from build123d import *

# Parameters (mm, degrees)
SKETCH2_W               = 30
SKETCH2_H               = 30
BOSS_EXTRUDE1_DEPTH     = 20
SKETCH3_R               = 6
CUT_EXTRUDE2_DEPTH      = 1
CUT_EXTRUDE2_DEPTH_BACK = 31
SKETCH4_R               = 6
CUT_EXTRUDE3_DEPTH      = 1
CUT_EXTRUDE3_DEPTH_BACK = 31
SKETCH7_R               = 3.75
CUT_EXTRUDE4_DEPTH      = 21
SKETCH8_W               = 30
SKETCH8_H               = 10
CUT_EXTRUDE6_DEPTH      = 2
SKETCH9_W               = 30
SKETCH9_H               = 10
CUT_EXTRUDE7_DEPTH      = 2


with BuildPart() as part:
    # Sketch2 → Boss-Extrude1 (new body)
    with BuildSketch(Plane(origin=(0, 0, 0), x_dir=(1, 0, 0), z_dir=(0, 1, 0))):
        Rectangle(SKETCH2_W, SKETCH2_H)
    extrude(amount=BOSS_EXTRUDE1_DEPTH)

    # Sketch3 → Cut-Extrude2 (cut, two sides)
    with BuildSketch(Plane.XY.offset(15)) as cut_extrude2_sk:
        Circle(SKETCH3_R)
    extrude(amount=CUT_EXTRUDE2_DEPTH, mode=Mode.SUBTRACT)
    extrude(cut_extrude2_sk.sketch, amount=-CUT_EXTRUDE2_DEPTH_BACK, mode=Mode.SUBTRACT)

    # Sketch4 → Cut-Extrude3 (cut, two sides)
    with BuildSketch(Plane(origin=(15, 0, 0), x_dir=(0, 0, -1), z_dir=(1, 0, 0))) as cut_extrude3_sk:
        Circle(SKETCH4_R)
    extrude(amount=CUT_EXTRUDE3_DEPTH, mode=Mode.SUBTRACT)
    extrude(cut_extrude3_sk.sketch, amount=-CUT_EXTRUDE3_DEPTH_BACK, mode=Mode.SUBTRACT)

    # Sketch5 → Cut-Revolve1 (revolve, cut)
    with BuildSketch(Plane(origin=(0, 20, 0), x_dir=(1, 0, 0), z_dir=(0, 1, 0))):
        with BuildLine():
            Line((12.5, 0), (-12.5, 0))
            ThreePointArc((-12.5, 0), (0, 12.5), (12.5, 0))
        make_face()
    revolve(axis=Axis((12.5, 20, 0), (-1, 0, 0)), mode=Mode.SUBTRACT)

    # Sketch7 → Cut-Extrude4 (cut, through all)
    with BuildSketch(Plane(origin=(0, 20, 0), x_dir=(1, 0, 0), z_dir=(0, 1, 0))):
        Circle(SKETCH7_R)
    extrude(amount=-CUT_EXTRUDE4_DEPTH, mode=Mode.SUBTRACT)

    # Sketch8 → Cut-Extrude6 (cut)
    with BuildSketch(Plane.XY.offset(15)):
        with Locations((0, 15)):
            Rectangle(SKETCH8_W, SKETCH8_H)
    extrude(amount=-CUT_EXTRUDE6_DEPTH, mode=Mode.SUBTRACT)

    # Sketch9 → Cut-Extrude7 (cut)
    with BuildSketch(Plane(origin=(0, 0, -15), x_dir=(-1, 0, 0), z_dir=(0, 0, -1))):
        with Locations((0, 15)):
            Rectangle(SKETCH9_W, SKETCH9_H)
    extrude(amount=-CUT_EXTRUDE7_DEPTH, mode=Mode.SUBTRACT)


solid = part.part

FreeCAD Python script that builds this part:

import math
import FreeCAD as App
import Part
import Sketcher

V = App.Vector
Q = App.Units.Quantity

doc = App.newDocument("Part")
params = doc.addObject("Spreadsheet::Sheet", "Params")
for row, (alias, value) in enumerate([
    ("sketch1_width", "30 mm"),
    ("pad1_length", "20 mm"),
    ("sketch2_diameter", "12 mm"),
    ("sketch3_diameter", "12 mm"),
    ("sketch4_radius", "12.5 mm"),
    ("groove_angle", "360 deg"),
    ("sketch5_diameter", "7.5 mm"),
    ("sketch6_width", "30 mm"),
    ("sketch6_height", "10 mm"),
    ("pocket4_length", "2 mm"),
    ("sketch7_width", "30 mm"),
    ("sketch7_height", "10 mm"),
    ("pocket5_length", "2 mm"),
], start=1):
    params.set(f"A{row}", alias)
    params.set(f"B{row}", "=" + value)
    params.setAlias(f"B{row}", alias)

body = doc.addObject("PartDesign::Body", "Body")

sketch1 = doc.addObject("Sketcher::SketchObject", "Sketch")
body.addObject(sketch1)
sketch1.AttachmentSupport = (doc.XZ_Plane, [""])
sketch1.MapMode = "FlatFace"
sketch1.addGeometry(Part.LineSegment(V(-15, -15, 0), V(-15, 15, 0)), False)
sketch1.addGeometry(Part.LineSegment(V(-15, 15, 0), V(15, 15, 0)), False)
sketch1.addGeometry(Part.LineSegment(V(15, 15, 0), V(15, -15, 0)), False)
sketch1.addGeometry(Part.LineSegment(V(15, -15, 0), V(-15, -15, 0)), False)
sketch1.addConstraint(Sketcher.Constraint("Coincident", 0, 2, 1, 1))
sketch1.addConstraint(Sketcher.Constraint("Coincident", 1, 2, 2, 1))
sketch1.addConstraint(Sketcher.Constraint("Coincident", 2, 2, 3, 1))
sketch1.addConstraint(Sketcher.Constraint("Coincident", 3, 2, 0, 1))
sketch1.addConstraint(Sketcher.Constraint("Vertical", 0))
sketch1.addConstraint(Sketcher.Constraint("Horizontal", 1))
sketch1.addConstraint(Sketcher.Constraint("Vertical", 2))
sketch1.addConstraint(Sketcher.Constraint("Horizontal", 3))
sketch1.addConstraint(Sketcher.Constraint("Symmetric", 0, 2, 2, 2, -1, 1))
sketch1.addConstraint(Sketcher.Constraint("Equal", 3, 0))
sketch1.addConstraint(Sketcher.Constraint("DistanceX", 1, 1, 1, 2, Q("30 mm")))
sketch1.setExpression("Constraints[10]", "Params.sketch1_width")
pad1 = doc.addObject("PartDesign::Pad", "Pad")
body.addObject(pad1)
pad1.Profile = sketch1
pad1.setExpression("Length", "Params.pad1_length")
pad1.Reversed = True

sketch2 = doc.addObject("Sketcher::SketchObject", "Sketch001")
body.addObject(sketch2)
sketch2.AttachmentSupport = (doc.XY_Plane, [""])
sketch2.MapMode = "FlatFace"
sketch2.AttachmentOffset = App.Placement(V(0, 0, 15), App.Rotation())
sketch2.addGeometry(Part.Circle(V(0, 0, 0), V(0, 0, 1), 6), False)
sketch2.addConstraint(Sketcher.Constraint("Coincident", 0, 3, -1, 1))
sketch2.addConstraint(Sketcher.Constraint("Diameter", 0, Q("12 mm")))
sketch2.setExpression("Constraints[1]", "Params.sketch2_diameter")
pocket1 = doc.addObject("PartDesign::Pocket", "Pocket")
body.addObject(pocket1)
pocket1.Profile = sketch2
pocket1.Type = "ThroughAll"
pocket1.Midplane = True

sketch3 = doc.addObject("Sketcher::SketchObject", "Sketch002")
body.addObject(sketch3)
sketch3.AttachmentSupport = (doc.YZ_Plane, [""])
sketch3.MapMode = "FlatFace"
sketch3.AttachmentOffset = App.Placement(V(0, 0, 15), App.Rotation())
sketch3.addGeometry(Part.Circle(V(0, 0, 0), V(0, 0, 1), 6), False)
sketch3.addConstraint(Sketcher.Constraint("Coincident", 0, 3, -1, 1))
sketch3.addConstraint(Sketcher.Constraint("Diameter", 0, Q("12 mm")))
sketch3.setExpression("Constraints[1]", "Params.sketch3_diameter")
pocket2 = doc.addObject("PartDesign::Pocket", "Pocket001")
body.addObject(pocket2)
pocket2.Profile = sketch3
pocket2.Type = "ThroughAll"
pocket2.Midplane = True

sketch4 = doc.addObject("Sketcher::SketchObject", "Sketch003")
body.addObject(sketch4)
sketch4.AttachmentSupport = (doc.XZ_Plane, [""])
sketch4.MapMode = "FlatFace"
sketch4.AttachmentOffset = App.Placement(V(0, 0, -20), App.Rotation())
sketch4.addGeometry(Part.LineSegment(V(-12.5, 0, 0), V(12.5, 0, 0)), False)
sketch4.addGeometry(Part.ArcOfCircle(Part.Circle(V(0, 0, 0), V(0, 0, 1), 12.5), math.radians(180), math.radians(360)), False)
sketch4.addConstraint(Sketcher.Constraint("Coincident", 0, 1, 1, 1))
sketch4.addConstraint(Sketcher.Constraint("Coincident", 1, 2, 0, 2))
sketch4.addConstraint(Sketcher.Constraint("Horizontal", 0))
sketch4.addConstraint(Sketcher.Constraint("Coincident", 1, 3, -1, 1))
sketch4.addConstraint(Sketcher.Constraint("PointOnObject", 0, 1, -1))
sketch4.addConstraint(Sketcher.Constraint("Radius", 1, Q("12.5 mm")))
sketch4.setExpression("Constraints[5]", "Params.sketch4_radius")
groove = doc.addObject("PartDesign::Groove", "Groove")
body.addObject(groove)
groove.Profile = sketch4
groove.ReferenceAxis = (sketch4, ["H_Axis"])
groove.setExpression("Angle", "Params.groove_angle")

sketch5 = doc.addObject("Sketcher::SketchObject", "Sketch004")
body.addObject(sketch5)
sketch5.AttachmentSupport = (doc.XZ_Plane, [""])
sketch5.MapMode = "FlatFace"
sketch5.AttachmentOffset = App.Placement(V(0, 0, -20), App.Rotation())
sketch5.addGeometry(Part.Circle(V(0, 0, 0), V(0, 0, 1), 3.75), False)
sketch5.addConstraint(Sketcher.Constraint("Coincident", 0, 3, -1, 1))
sketch5.addConstraint(Sketcher.Constraint("Diameter", 0, Q("7.5 mm")))
sketch5.setExpression("Constraints[1]", "Params.sketch5_diameter")
pocket3 = doc.addObject("PartDesign::Pocket", "Pocket002")
body.addObject(pocket3)
pocket3.Profile = sketch5
pocket3.Type = "ThroughAll"
pocket3.Reversed = True

sketch6 = doc.addObject("Sketcher::SketchObject", "Sketch005")
body.addObject(sketch6)
sketch6.AttachmentSupport = (doc.XY_Plane, [""])
sketch6.MapMode = "FlatFace"
sketch6.AttachmentOffset = App.Placement(V(0, 0, 15), App.Rotation())
sketch6.addGeometry(Part.LineSegment(V(-15, 20, 0), V(-15, 10, 0)), False)
sketch6.addGeometry(Part.LineSegment(V(-15, 10, 0), V(15, 10, 0)), False)
sketch6.addGeometry(Part.LineSegment(V(15, 10, 0), V(15, 20, 0)), False)
sketch6.addGeometry(Part.LineSegment(V(15, 20, 0), V(-15, 20, 0)), False)
sketch6.addConstraint(Sketcher.Constraint("Coincident", 0, 2, 1, 1))
sketch6.addConstraint(Sketcher.Constraint("Coincident", 1, 2, 2, 1))
sketch6.addConstraint(Sketcher.Constraint("Coincident", 2, 2, 3, 1))
sketch6.addConstraint(Sketcher.Constraint("Coincident", 3, 2, 0, 1))
sketch6.addConstraint(Sketcher.Constraint("Vertical", 0))
sketch6.addConstraint(Sketcher.Constraint("Horizontal", 1))
sketch6.addConstraint(Sketcher.Constraint("Vertical", 2))
sketch6.addConstraint(Sketcher.Constraint("Horizontal", 3))
sketch6.addConstraint(Sketcher.Constraint("DistanceX", 1, 1, 1, 2, Q("30 mm")))
sketch6.addConstraint(Sketcher.Constraint("DistanceY", 0, 2, 0, 1, Q("10 mm")))
sketch6.addConstraint(Sketcher.Constraint("DistanceX", 0, 2, -1, 1, Q("15 mm")))
sketch6.addConstraint(Sketcher.Constraint("DistanceY", -1, 1, 0, 2, Q("10 mm")))
sketch6.setExpression("Constraints[8]", "Params.sketch6_width")
sketch6.setExpression("Constraints[9]", "Params.sketch6_height")
pocket4 = doc.addObject("PartDesign::Pocket", "Pocket003")
body.addObject(pocket4)
pocket4.Profile = sketch6
pocket4.setExpression("Length", "Params.pocket4_length")

sketch7 = doc.addObject("Sketcher::SketchObject", "Sketch006")
body.addObject(sketch7)
sketch7.AttachmentSupport = (doc.XY_Plane, [""])
sketch7.MapMode = "FlatFace"
sketch7.AttachmentOffset = App.Placement(V(0, 0, -15), App.Rotation())
sketch7.addGeometry(Part.LineSegment(V(15, 20, 0), V(15, 10, 0)), False)
sketch7.addGeometry(Part.LineSegment(V(15, 10, 0), V(-15, 10, 0)), False)
sketch7.addGeometry(Part.LineSegment(V(-15, 10, 0), V(-15, 20, 0)), False)
sketch7.addGeometry(Part.LineSegment(V(-15, 20, 0), V(15, 20, 0)), False)
sketch7.addConstraint(Sketcher.Constraint("Coincident", 0, 2, 1, 1))
sketch7.addConstraint(Sketcher.Constraint("Coincident", 1, 2, 2, 1))
sketch7.addConstraint(Sketcher.Constraint("Coincident", 2, 2, 3, 1))
sketch7.addConstraint(Sketcher.Constraint("Coincident", 3, 2, 0, 1))
sketch7.addConstraint(Sketcher.Constraint("Vertical", 0))
sketch7.addConstraint(Sketcher.Constraint("Horizontal", 1))
sketch7.addConstraint(Sketcher.Constraint("Vertical", 2))
sketch7.addConstraint(Sketcher.Constraint("Horizontal", 3))
sketch7.addConstraint(Sketcher.Constraint("DistanceX", 1, 2, 1, 1, Q("30 mm")))
sketch7.addConstraint(Sketcher.Constraint("DistanceY", 0, 2, 0, 1, Q("10 mm")))
sketch7.addConstraint(Sketcher.Constraint("DistanceX", -1, 1, 0, 2, Q("15 mm")))
sketch7.addConstraint(Sketcher.Constraint("DistanceY", -1, 1, 0, 2, Q("10 mm")))
sketch7.setExpression("Constraints[8]", "Params.sketch7_width")
sketch7.setExpression("Constraints[9]", "Params.sketch7_height")
pocket5 = doc.addObject("PartDesign::Pocket", "Pocket004")
body.addObject(pocket5)
pocket5.Profile = sketch7
pocket5.setExpression("Length", "Params.pocket5_length")
pocket5.Reversed = True

doc.recompute()
